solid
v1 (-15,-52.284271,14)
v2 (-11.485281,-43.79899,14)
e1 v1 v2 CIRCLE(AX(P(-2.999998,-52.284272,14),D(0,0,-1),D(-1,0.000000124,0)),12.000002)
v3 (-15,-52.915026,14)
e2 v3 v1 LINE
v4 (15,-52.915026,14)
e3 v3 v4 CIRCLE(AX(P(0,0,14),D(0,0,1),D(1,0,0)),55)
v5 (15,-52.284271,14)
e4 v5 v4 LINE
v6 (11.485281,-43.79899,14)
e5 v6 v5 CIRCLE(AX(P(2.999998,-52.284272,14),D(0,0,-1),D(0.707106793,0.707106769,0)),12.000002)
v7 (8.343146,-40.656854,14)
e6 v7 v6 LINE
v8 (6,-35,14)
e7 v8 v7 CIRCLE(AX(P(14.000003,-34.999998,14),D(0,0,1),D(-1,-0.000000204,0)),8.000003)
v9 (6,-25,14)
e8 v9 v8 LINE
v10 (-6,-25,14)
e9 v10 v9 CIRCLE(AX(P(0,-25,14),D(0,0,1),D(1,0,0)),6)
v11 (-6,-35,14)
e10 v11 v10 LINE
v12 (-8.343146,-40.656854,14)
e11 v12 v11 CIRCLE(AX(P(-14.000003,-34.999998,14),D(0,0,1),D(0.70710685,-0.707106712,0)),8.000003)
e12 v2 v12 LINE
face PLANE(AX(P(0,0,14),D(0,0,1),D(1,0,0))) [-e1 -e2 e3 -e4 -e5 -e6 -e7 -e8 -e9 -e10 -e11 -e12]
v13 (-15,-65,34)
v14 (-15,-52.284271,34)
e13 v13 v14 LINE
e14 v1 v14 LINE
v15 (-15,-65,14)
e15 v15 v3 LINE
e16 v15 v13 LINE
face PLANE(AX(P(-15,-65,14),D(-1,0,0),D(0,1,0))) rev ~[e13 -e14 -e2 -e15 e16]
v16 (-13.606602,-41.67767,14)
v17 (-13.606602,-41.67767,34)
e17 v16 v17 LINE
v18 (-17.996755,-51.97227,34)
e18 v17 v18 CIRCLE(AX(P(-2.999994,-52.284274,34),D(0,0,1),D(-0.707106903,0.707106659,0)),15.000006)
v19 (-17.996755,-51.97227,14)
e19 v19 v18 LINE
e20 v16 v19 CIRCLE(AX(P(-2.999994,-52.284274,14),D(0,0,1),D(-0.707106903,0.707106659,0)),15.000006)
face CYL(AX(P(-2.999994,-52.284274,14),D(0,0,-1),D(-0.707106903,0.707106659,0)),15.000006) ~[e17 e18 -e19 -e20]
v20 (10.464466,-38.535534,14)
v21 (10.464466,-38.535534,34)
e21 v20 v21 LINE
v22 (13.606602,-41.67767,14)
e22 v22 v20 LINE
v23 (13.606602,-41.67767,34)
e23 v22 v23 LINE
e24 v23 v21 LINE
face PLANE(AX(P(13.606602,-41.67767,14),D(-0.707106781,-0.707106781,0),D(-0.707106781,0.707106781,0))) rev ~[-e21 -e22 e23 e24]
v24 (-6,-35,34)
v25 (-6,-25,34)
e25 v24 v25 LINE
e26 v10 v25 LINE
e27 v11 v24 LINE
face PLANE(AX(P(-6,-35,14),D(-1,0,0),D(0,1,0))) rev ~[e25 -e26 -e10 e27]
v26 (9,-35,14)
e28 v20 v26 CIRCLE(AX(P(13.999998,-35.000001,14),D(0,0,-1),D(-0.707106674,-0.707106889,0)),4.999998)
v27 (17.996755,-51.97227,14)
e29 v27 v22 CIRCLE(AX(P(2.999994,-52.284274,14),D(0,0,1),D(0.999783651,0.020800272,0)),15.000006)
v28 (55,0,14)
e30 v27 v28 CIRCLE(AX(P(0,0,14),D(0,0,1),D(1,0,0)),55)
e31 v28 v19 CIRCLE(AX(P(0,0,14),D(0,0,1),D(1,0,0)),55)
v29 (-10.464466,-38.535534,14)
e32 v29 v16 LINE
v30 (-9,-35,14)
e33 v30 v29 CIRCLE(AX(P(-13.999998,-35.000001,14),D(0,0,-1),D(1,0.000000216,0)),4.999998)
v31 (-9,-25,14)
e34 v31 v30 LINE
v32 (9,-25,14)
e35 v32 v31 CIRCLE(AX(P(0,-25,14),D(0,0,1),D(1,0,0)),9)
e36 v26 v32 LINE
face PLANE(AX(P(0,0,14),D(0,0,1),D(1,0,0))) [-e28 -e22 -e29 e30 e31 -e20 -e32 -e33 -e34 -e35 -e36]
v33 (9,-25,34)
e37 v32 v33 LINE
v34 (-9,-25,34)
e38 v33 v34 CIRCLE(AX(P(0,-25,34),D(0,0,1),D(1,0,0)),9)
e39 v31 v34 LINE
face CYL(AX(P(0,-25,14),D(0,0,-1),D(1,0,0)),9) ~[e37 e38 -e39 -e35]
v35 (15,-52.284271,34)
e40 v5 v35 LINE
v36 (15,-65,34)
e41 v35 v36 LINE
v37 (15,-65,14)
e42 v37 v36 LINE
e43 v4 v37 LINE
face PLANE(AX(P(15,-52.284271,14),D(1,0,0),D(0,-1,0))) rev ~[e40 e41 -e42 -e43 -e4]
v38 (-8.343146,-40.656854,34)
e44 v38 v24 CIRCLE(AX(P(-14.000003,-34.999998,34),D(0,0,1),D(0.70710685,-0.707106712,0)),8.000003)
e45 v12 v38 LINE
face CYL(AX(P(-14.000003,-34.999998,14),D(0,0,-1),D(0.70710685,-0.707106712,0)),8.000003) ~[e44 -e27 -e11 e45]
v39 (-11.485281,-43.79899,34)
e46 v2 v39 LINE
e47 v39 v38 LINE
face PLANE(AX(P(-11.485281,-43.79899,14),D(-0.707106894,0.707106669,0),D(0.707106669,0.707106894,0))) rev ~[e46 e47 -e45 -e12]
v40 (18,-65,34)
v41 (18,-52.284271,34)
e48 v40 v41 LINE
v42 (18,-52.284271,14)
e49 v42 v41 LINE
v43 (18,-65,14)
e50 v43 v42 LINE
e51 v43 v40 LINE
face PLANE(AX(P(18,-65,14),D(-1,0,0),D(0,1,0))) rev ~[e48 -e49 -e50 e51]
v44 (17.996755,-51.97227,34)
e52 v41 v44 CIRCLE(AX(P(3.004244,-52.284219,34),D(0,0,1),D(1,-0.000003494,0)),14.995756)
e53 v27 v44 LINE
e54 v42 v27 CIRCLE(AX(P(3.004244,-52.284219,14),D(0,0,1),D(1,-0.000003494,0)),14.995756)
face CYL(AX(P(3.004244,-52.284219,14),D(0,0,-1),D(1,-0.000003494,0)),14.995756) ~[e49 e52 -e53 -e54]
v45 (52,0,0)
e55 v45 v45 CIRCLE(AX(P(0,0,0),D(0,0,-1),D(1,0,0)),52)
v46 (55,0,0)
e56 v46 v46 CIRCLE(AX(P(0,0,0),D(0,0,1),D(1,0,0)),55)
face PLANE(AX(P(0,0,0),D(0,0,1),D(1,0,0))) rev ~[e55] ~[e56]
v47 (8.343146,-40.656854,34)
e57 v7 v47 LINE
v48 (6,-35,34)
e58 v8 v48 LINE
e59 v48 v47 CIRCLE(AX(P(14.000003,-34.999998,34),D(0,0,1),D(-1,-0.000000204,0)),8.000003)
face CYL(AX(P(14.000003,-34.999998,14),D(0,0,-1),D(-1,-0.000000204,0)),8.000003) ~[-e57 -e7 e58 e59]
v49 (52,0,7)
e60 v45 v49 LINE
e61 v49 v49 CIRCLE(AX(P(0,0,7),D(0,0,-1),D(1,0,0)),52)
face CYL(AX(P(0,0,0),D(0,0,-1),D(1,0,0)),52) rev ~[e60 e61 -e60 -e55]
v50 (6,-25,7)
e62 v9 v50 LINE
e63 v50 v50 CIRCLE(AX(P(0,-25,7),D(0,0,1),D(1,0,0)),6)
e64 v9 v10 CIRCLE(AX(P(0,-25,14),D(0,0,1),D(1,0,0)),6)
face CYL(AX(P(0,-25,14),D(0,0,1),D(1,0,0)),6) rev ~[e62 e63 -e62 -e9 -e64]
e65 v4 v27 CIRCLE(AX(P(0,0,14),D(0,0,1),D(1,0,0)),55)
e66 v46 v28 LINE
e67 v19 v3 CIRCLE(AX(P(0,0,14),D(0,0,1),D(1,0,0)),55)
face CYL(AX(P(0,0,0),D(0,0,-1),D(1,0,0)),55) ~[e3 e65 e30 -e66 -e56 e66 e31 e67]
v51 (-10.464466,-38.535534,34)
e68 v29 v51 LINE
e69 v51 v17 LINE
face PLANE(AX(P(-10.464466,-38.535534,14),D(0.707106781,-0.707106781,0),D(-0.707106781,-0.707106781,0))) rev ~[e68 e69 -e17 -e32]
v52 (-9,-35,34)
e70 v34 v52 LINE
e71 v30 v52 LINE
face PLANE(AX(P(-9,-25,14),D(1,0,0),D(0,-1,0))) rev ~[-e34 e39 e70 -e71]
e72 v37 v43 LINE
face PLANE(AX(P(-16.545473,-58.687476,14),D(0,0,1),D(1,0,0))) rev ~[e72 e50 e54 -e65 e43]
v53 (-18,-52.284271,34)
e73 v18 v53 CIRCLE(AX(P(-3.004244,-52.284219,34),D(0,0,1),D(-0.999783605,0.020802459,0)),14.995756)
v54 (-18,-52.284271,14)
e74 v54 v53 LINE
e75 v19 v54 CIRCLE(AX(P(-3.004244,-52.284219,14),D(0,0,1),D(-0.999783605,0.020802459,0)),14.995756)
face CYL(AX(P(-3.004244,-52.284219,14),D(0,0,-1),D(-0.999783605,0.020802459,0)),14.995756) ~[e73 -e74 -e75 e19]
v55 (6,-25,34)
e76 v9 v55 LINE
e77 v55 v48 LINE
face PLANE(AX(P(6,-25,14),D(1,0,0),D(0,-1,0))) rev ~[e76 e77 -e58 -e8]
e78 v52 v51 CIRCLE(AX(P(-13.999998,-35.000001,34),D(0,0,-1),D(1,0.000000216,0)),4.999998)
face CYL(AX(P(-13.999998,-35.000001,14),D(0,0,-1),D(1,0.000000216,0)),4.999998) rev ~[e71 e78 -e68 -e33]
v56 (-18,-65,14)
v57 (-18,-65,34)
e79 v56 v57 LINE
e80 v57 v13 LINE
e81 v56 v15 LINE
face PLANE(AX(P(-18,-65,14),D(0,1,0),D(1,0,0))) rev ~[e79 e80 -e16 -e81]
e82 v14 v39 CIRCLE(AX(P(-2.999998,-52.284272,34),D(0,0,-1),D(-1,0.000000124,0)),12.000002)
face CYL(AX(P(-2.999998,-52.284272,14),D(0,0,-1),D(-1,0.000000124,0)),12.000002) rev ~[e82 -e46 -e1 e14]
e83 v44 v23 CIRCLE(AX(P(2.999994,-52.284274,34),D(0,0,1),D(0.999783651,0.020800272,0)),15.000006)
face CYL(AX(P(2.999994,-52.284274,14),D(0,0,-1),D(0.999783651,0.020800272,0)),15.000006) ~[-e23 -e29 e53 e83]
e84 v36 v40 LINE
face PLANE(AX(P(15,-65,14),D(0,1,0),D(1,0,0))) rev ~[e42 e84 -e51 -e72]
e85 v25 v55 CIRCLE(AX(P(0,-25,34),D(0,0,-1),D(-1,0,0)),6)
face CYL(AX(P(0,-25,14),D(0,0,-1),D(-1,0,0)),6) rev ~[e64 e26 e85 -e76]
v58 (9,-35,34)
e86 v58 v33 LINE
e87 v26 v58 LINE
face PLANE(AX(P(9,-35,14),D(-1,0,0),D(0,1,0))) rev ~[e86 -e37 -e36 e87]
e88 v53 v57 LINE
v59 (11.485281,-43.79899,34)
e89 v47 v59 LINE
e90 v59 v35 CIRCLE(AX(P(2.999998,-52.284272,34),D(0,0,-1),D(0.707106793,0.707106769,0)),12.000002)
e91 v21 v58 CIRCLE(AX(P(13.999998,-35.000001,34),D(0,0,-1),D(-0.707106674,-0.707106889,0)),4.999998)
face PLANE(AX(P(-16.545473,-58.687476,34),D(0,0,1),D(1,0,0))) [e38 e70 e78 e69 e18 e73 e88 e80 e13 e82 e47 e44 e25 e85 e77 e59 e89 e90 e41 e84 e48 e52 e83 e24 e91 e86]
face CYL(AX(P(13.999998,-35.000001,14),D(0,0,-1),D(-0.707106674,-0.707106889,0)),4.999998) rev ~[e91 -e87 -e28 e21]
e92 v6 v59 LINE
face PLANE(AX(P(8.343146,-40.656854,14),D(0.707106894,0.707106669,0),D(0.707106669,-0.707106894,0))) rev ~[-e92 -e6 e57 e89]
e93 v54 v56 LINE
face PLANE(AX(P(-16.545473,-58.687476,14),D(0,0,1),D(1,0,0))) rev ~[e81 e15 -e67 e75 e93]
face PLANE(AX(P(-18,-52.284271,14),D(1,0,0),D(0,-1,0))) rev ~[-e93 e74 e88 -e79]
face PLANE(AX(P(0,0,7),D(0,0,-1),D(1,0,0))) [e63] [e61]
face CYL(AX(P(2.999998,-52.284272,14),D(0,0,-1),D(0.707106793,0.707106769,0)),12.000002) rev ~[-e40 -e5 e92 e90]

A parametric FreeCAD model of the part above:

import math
import FreeCAD as App
import Part
import Sketcher
Q = App.Units.Quantity

doc = App.newDocument("Part")
params = doc.addObject("Spreadsheet::Sheet", "Params")
for row, (alias, value) in enumerate([
    ("sketch1_diameter", "110 mm"),
    ("pad1_length", "14 mm"),
    ("sketch2_diameter", "104 mm"),
    ("pocket1_length", "7 mm"),
    ("sketch3_diameter", "12 mm"),
    ("sketch4_radius", "12.000002 mm"),
    ("sketch4_radius2", "6 mm"),
    ("sketch4_radius3", "9 mm"),
    ("sketch4_width", "3 mm"),
    ("sketch4_height", "10 mm"),
    ("pad2_length", "20 mm"),
], start=1):
    params.set(f"A{row}", alias)
    params.set(f"B{row}", "=" + value)
    params.setAlias(f"B{row}", alias)

body = doc.addObject("PartDesign::Body", "Body")

# Sketch on XY plane
sketch1 = body.newObject("Sketcher::SketchObject", "Sketch")
sketch1.AttachmentSupport = (doc.getObject("XY_Plane"), [""])
sketch1.MapMode = "FlatFace"
sketch1.addGeometry(Part.Circle(App.Vector(0, 0, 0), App.Vector(0, 0, 1), 55), False)
sketch1.addConstraint([
    Sketcher.Constraint("Coincident", 0, 3, -1, 1),
    Sketcher.Constraint("Diameter", 0, Q("110 mm")),
])
sketch1.setExpression("Constraints[1]", "Params.sketch1_diameter")
pad1 = body.newObject("PartDesign::Pad", "Pad")
pad1.Profile = sketch1
pad1.setExpression("Length", "Params.pad1_length")

# Sketch on XY plane
sketch2 = body.newObject("Sketcher::SketchObject", "Sketch001")
sketch2.AttachmentSupport = (doc.getObject("XY_Plane"), [""])
sketch2.MapMode = "FlatFace"
sketch2.addGeometry(Part.Circle(App.Vector(0, 0, 0), App.Vector(0, 0, 1), 52), False)
sketch2.addConstraint([
    Sketcher.Constraint("Coincident", 0, 3, -1, 1),
    Sketcher.Constraint("Diameter", 0, Q("104 mm")),
])
sketch2.setExpression("Constraints[1]", "Params.sketch2_diameter")
pocket1 = body.newObject("PartDesign::Pocket", "Pocket")
pocket1.Profile = sketch2
pocket1.setExpression("Length", "Params.pocket1_length")
pocket1.Reversed = True

# Sketch on XY plane
sketch3 = body.newObject("Sketcher::SketchObject", "Sketch002")
sketch3.AttachmentSupport = (doc.getObject("XY_Plane"), [""])
sketch3.MapMode = "FlatFace"
sketch3.AttachmentOffset = App.Placement(App.Vector(0, 0, 14), App.Rotation())
sketch3.addGeometry(Part.Circle(App.Vector(0, -25, 0), App.Vector(0, 0, 1), 6), False)
sketch3.addConstraint([
    Sketcher.Constraint("PointOnObject", 0, 3, -2),
    Sketcher.Constraint("Diameter", 0, Q("12 mm")),
    Sketcher.Constraint("DistanceY", 0, 3, -1, 1, Q("25 mm")),
])
sketch3.setExpression("Constraints[1]", "Params.sketch3_diameter")
pocket2 = body.newObject("PartDesign::Pocket", "Pocket001")
pocket2.Profile = sketch3
pocket2.Type = "ThroughAll"

# Sketch on XY plane
sketch4 = body.newObject("Sketcher::SketchObject", "Sketch003")
sketch4.AttachmentSupport = (doc.getObject("XY_Plane"), [""])
sketch4.MapMode = "FlatFace"
sketch4.AttachmentOffset = App.Placement(App.Vector(0, 0, 14), App.Rotation())
sketch4.addGeometry([
    Part.LineSegment(App.Vector(-15, -65, 0), App.Vector(-15, -52.28, 0)),  # 0
    Part.ArcOfCircle(Part.Circle(App.Vector(-3, -52.28, 0), App.Vector(0, 0, 1), 12), math.radians(135), math.radians(180)),  # 1
    Part.LineSegment(App.Vector(-11.49, -43.8, 0), App.Vector(-8.34, -40.66, 0)),  # 2
    Part.ArcOfCircle(Part.Circle(App.Vector(-14, -35, 0), App.Vector(0, 0, 1), 8), math.radians(-45), math.radians(0)),  # 3
    Part.LineSegment(App.Vector(-6, -35, 0), App.Vector(-6, -25, 0)),  # 4
    Part.ArcOfCircle(Part.Circle(App.Vector(0, -25, 0), App.Vector(0, 0, 1), 6), math.radians(0), math.radians(180)),  # 5
    Part.LineSegment(App.Vector(6, -25, 0), App.Vector(6, -35, 0)),  # 6
    Part.ArcOfCircle(Part.Circle(App.Vector(14, -35, 0), App.Vector(0, 0, 1), 8), math.radians(-180), math.radians(-135)),  # 7
    Part.LineSegment(App.Vector(8.34, -40.66, 0), App.Vector(11.49, -43.8, 0)),  # 8
    Part.ArcOfCircle(Part.Circle(App.Vector(3, -52.28, 0), App.Vector(0, 0, 1), 12), math.radians(0), math.radians(45)),  # 9
    Part.LineSegment(App.Vector(15, -52.28, 0), App.Vector(15, -65, 0)),  # 10
    Part.LineSegment(App.Vector(15, -65, 0), App.Vector(18, -65, 0)),  # 11
    Part.LineSegment(App.Vector(18, -65, 0), App.Vector(18, -52.28, 0)),  # 12
    Part.ArcOfCircle(Part.Circle(App.Vector(3, -52.28, 0), App.Vector(0, 0, 1), 15), math.radians(0), math.radians(1.19)),  # 13
    Part.ArcOfCircle(Part.Circle(App.Vector(3, -52.28, 0), App.Vector(0, 0, 1), 15), math.radians(1), math.radians(45)),  # 14
    Part.LineSegment(App.Vector(13.61, -41.68, 0), App.Vector(10.46, -38.54, 0)),  # 15
    Part.ArcOfCircle(Part.Circle(App.Vector(14, -35, 0), App.Vector(0, 0, 1), 5), math.radians(180), math.radians(225)),  # 16
    Part.LineSegment(App.Vector(9, -35, 0), App.Vector(9, -25, 0)),  # 17
    Part.ArcOfCircle(Part.Circle(App.Vector(0, -25, 0), App.Vector(0, 0, 1), 9), math.radians(0), math.radians(180)),  # 18
    Part.LineSegment(App.Vector(-9, -25, 0), App.Vector(-9, -35, 0)),  # 19
    Part.ArcOfCircle(Part.Circle(App.Vector(-14, -35, 0), App.Vector(0, 0, 1), 5), math.radians(-45), math.radians(0)),  # 20
    Part.LineSegment(App.Vector(-10.46, -38.54, 0), App.Vector(-13.61, -41.68, 0)),  # 21
    Part.ArcOfCircle(Part.Circle(App.Vector(-3, -52.28, 0), App.Vector(0, 0, 1), 15), math.radians(135), math.radians(179)),  # 22
    Part.ArcOfCircle(Part.Circle(App.Vector(-3, -52.28, 0), App.Vector(0, 0, 1), 15), math.radians(178.81), math.radians(180)),  # 23
    Part.LineSegment(App.Vector(-18, -52.28, 0), App.Vector(-18, -65, 0)),  # 24
    Part.LineSegment(App.Vector(-18, -65, 0), App.Vector(-15, -65, 0)),  # 25
], False)
sketch4.addConstraint([
    Sketcher.Constraint("Tangent", 0, 2, 1, 2),
    Sketcher.Constraint("Tangent", 1, 1, 2, 1),
    Sketcher.Constraint("Tangent", 2, 2, 3, 1),
    Sketcher.Constraint("Tangent", 3, 2, 4, 1),
    Sketcher.Constraint("Tangent", 4, 2, 5, 2),
    Sketcher.Constraint("Tangent", 5, 1, 6, 1),
    Sketcher.Constraint("Tangent", 6, 2, 7, 1),
    Sketcher.Constraint("Tangent", 7, 2, 8, 1),
    Sketcher.Constraint("Tangent", 8, 2, 9, 2),
    Sketcher.Constraint("Tangent", 9, 1, 10, 1),
    Sketcher.Constraint("Coincident", 10, 2, 11, 1),
    Sketcher.Constraint("Coincident", 11, 2, 12, 1),
    Sketcher.Constraint("Coincident", 12, 2, 13, 1),
    Sketcher.Constraint("Coincident", 13, 2, 14, 1),
    Sketcher.Constraint("Tangent", 14, 2, 15, 1),
    Sketcher.Constraint("Tangent", 15, 2, 16, 2),
    Sketcher.Constraint("Tangent", 16, 1, 17, 1),
    Sketcher.Constraint("Tangent", 17, 2, 18, 1),
    Sketcher.Constraint("Tangent", 18, 2, 19, 1),
    Sketcher.Constraint("Tangent", 19, 2, 20, 2),
    Sketcher.Constraint("Tangent", 20, 1, 21, 1),
    Sketcher.Constraint("Tangent", 21, 2, 22, 1),
    Sketcher.Constraint("Coincident", 22, 2, 23, 1),
    Sketcher.Constraint("Coincident", 23, 2, 24, 1),
    Sketcher.Constraint("Coincident", 24, 2, 25, 1),
    Sketcher.Constraint("Coincident", 25, 2, 0, 1),
    Sketcher.Constraint("Vertical", 0),
    Sketcher.Constraint("Vertical", 4),
    Sketcher.Constraint("Vertical", 6),
    Sketcher.Constraint("Vertical", 10),
    Sketcher.Constraint("Horizontal", 11),
    Sketcher.Constraint("Vertical", 12),
    Sketcher.Constraint("Vertical", 17),
    Sketcher.Constraint("Vertical", 19),
    Sketcher.Constraint("Vertical", 24),
    Sketcher.Constraint("Horizontal", 25),
    Sketcher.Constraint("Coincident", 14, 3, 9, 3),
    Sketcher.Constraint("Coincident", 16, 3, 7, 3),
    Sketcher.Constraint("Coincident", 18, 3, 5, 3),
    Sketcher.Constraint("Coincident", 20, 3, 3, 3),
    Sketcher.Constraint("Coincident", 22, 3, 1, 3),
    Sketcher.Constraint("Equal", 3, 7),
    Sketcher.Constraint("Equal", 1, 9),
    Sketcher.Constraint("Equal", 14, 22),
    Sketcher.Constraint("Equal", 13, 23),
    Sketcher.Constraint("Symmetric", 3, 3, 7, 3, -2),
    Sketcher.Constraint("Symmetric", 1, 3, 9, 3, -2),
    Sketcher.Constraint("Symmetric", 12, 2, 23, 2, -2),
    Sketcher.Constraint("Perpendicular", 2, 8),
    Sketcher.Constraint("Parallel", 8, 15),
    Sketcher.Constraint("Horizontal", 9, 1, 12, 2),
    Sketcher.Constraint("Horizontal", 13, 2, 22, 2),
    Sketcher.Constraint("Horizontal", 11, 2, 24, 2),
    Sketcher.Constraint("Radius", 1, Q("12.000002 mm")),
    Sketcher.Constraint("Radius", 5, Q("6 mm")),
    Sketcher.Constraint("Radius", 18, Q("9 mm")),
    Sketcher.Constraint("DistanceX", 11, 1, 11, 2, Q("3 mm")),
    Sketcher.Constraint("DistanceY", 4, 1, 4, 2, Q("10 mm")),
    Sketcher.Constraint("DistanceX", 1, 3, -1, 1, Q("2.999998 mm")),
    Sketcher.Constraint("DistanceY", 3, 3, -1, 1, Q("34.999998 mm")),
    Sketcher.Constraint("DistanceY", 10, 2, -1, 1, Q("65 mm")),
    Sketcher.Constraint("DistanceX", 1, 3, 7, 3, Q("17.000001 mm")),
    Sketcher.Constraint("Radius", 13, Q("14.995756 mm")),
    Sketcher.Constraint("DistanceY", 12, 2, 13, 2, Q("0.312001 mm")),
])
sketch4.setExpression("Constraints[53]", "Params.sketch4_radius")
sketch4.setExpression("Constraints[54]", "Params.sketch4_radius2")
sketch4.setExpression("Constraints[55]", "Params.sketch4_radius3")
sketch4.setExpression("Constraints[56]", "Params.sketch4_width")
sketch4.setExpression("Constraints[57]", "Params.sketch4_height")
pad2 = body.newObject("PartDesign::Pad", "Pad001")
pad2.Profile = sketch4
pad2.setExpression("Length", "Params.pad2_length")

doc.recompute()
